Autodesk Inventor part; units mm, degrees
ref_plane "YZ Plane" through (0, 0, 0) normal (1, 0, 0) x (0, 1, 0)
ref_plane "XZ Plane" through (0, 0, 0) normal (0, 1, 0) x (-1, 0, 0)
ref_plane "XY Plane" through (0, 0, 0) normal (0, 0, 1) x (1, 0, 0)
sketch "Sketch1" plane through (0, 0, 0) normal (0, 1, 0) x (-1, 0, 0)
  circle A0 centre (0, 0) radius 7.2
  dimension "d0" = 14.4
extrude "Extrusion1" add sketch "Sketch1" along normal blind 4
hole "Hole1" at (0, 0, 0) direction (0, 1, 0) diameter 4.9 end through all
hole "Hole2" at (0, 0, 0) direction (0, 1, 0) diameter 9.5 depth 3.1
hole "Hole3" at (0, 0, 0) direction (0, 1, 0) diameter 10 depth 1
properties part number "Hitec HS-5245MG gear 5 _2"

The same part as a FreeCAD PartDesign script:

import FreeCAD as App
import Part
import Sketcher

doc = App.newDocument("Part")
body = doc.addObject("PartDesign::Body", "Body")

# Sketch on XZ plane
sketch1 = body.newObject("Sketcher::SketchObject", "Sketch")
sketch1.AttachmentSupport = (doc.getObject("XZ_Plane"), [""])
sketch1.MapMode = "FlatFace"
sketch1.addGeometry(Part.Circle(App.Vector(0, 0, 0), App.Vector(0, 0, 1), 7.2), False)
sketch1.addConstraint(Sketcher.Constraint("Coincident", 0, 3, -1, 1))
sketch1.addConstraint(Sketcher.Constraint("Diameter", 0, 14.4))
pad1 = body.newObject("PartDesign::Pad", "Pad")
pad1.Profile = sketch1
pad1.Length = 4
pad1.Reversed = True

# Sketch on XZ plane
sketch2 = body.newObject("Sketcher::SketchObject", "Sketch001")
sketch2.AttachmentSupport = (doc.getObject("XZ_Plane"), [""])
sketch2.MapMode = "FlatFace"
sketch2.addGeometry(Part.Circle(App.Vector(0, 0, 0), App.Vector(0, 0, 1), 2.45), False)
sketch2.addConstraint(Sketcher.Constraint("Coincident", 0, 3, -1, 1))
sketch2.addConstraint(Sketcher.Constraint("Diameter", 0, 4.9))
doc.recompute()
hole = body.newObject("PartDesign::Hole", "Hole")
hole.Profile = sketch2
hole.ThreadType = "None"
hole.Diameter = 4.9
hole.DepthType = "ThroughAll"

# Sketch on XZ plane
sketch3 = body.newObject("Sketcher::SketchObject", "Sketch002")
sketch3.AttachmentSupport = (doc.getObject("XZ_Plane"), [""])
sketch3.MapMode = "FlatFace"
sketch3.addGeometry(Part.Circle(App.Vector(0, 0, 0), App.Vector(0, 0, 1), 4.75), False)
sketch3.addConstraint(Sketcher.Constraint("Coincident", 0, 3, -1, 1))
sketch3.addConstraint(Sketcher.Constraint("Diameter", 0, 9.5))
doc.recompute()
hole2 = body.newObject("PartDesign::Hole", "Hole001")
hole2.Profile = sketch3
hole2.ThreadType = "None"
hole2.Diameter = 9.5
hole2.DepthType = "Dimension"
hole2.Depth = 3.1
hole2.DrillPoint = "Flat"

# Sketch on XZ plane
sketch4 = body.newObject("Sketcher::SketchObject", "Sketch003")
sketch4.AttachmentSupport = (doc.getObject("XZ_Plane"), [""])
sketch4.MapMode = "FlatFace"
sketch4.addGeometry(Part.Circle(App.Vector(0, 0, 0), App.Vector(0, 0, 1), 5), False)
sketch4.addConstraint(Sketcher.Constraint("Coincident", 0, 3, -1, 1))
sketch4.addConstraint(Sketcher.Constraint("Diameter", 0, 10.0))
doc.recompute()
hole3 = body.newObject("PartDesign::Hole", "Hole002")
hole3.Profile = sketch4
hole3.ThreadType = "None"
hole3.Diameter = 10
hole3.DepthType = "Dimension"
hole3.Depth = 1
hole3.DrillPoint = "Flat"

doc.recompute()
